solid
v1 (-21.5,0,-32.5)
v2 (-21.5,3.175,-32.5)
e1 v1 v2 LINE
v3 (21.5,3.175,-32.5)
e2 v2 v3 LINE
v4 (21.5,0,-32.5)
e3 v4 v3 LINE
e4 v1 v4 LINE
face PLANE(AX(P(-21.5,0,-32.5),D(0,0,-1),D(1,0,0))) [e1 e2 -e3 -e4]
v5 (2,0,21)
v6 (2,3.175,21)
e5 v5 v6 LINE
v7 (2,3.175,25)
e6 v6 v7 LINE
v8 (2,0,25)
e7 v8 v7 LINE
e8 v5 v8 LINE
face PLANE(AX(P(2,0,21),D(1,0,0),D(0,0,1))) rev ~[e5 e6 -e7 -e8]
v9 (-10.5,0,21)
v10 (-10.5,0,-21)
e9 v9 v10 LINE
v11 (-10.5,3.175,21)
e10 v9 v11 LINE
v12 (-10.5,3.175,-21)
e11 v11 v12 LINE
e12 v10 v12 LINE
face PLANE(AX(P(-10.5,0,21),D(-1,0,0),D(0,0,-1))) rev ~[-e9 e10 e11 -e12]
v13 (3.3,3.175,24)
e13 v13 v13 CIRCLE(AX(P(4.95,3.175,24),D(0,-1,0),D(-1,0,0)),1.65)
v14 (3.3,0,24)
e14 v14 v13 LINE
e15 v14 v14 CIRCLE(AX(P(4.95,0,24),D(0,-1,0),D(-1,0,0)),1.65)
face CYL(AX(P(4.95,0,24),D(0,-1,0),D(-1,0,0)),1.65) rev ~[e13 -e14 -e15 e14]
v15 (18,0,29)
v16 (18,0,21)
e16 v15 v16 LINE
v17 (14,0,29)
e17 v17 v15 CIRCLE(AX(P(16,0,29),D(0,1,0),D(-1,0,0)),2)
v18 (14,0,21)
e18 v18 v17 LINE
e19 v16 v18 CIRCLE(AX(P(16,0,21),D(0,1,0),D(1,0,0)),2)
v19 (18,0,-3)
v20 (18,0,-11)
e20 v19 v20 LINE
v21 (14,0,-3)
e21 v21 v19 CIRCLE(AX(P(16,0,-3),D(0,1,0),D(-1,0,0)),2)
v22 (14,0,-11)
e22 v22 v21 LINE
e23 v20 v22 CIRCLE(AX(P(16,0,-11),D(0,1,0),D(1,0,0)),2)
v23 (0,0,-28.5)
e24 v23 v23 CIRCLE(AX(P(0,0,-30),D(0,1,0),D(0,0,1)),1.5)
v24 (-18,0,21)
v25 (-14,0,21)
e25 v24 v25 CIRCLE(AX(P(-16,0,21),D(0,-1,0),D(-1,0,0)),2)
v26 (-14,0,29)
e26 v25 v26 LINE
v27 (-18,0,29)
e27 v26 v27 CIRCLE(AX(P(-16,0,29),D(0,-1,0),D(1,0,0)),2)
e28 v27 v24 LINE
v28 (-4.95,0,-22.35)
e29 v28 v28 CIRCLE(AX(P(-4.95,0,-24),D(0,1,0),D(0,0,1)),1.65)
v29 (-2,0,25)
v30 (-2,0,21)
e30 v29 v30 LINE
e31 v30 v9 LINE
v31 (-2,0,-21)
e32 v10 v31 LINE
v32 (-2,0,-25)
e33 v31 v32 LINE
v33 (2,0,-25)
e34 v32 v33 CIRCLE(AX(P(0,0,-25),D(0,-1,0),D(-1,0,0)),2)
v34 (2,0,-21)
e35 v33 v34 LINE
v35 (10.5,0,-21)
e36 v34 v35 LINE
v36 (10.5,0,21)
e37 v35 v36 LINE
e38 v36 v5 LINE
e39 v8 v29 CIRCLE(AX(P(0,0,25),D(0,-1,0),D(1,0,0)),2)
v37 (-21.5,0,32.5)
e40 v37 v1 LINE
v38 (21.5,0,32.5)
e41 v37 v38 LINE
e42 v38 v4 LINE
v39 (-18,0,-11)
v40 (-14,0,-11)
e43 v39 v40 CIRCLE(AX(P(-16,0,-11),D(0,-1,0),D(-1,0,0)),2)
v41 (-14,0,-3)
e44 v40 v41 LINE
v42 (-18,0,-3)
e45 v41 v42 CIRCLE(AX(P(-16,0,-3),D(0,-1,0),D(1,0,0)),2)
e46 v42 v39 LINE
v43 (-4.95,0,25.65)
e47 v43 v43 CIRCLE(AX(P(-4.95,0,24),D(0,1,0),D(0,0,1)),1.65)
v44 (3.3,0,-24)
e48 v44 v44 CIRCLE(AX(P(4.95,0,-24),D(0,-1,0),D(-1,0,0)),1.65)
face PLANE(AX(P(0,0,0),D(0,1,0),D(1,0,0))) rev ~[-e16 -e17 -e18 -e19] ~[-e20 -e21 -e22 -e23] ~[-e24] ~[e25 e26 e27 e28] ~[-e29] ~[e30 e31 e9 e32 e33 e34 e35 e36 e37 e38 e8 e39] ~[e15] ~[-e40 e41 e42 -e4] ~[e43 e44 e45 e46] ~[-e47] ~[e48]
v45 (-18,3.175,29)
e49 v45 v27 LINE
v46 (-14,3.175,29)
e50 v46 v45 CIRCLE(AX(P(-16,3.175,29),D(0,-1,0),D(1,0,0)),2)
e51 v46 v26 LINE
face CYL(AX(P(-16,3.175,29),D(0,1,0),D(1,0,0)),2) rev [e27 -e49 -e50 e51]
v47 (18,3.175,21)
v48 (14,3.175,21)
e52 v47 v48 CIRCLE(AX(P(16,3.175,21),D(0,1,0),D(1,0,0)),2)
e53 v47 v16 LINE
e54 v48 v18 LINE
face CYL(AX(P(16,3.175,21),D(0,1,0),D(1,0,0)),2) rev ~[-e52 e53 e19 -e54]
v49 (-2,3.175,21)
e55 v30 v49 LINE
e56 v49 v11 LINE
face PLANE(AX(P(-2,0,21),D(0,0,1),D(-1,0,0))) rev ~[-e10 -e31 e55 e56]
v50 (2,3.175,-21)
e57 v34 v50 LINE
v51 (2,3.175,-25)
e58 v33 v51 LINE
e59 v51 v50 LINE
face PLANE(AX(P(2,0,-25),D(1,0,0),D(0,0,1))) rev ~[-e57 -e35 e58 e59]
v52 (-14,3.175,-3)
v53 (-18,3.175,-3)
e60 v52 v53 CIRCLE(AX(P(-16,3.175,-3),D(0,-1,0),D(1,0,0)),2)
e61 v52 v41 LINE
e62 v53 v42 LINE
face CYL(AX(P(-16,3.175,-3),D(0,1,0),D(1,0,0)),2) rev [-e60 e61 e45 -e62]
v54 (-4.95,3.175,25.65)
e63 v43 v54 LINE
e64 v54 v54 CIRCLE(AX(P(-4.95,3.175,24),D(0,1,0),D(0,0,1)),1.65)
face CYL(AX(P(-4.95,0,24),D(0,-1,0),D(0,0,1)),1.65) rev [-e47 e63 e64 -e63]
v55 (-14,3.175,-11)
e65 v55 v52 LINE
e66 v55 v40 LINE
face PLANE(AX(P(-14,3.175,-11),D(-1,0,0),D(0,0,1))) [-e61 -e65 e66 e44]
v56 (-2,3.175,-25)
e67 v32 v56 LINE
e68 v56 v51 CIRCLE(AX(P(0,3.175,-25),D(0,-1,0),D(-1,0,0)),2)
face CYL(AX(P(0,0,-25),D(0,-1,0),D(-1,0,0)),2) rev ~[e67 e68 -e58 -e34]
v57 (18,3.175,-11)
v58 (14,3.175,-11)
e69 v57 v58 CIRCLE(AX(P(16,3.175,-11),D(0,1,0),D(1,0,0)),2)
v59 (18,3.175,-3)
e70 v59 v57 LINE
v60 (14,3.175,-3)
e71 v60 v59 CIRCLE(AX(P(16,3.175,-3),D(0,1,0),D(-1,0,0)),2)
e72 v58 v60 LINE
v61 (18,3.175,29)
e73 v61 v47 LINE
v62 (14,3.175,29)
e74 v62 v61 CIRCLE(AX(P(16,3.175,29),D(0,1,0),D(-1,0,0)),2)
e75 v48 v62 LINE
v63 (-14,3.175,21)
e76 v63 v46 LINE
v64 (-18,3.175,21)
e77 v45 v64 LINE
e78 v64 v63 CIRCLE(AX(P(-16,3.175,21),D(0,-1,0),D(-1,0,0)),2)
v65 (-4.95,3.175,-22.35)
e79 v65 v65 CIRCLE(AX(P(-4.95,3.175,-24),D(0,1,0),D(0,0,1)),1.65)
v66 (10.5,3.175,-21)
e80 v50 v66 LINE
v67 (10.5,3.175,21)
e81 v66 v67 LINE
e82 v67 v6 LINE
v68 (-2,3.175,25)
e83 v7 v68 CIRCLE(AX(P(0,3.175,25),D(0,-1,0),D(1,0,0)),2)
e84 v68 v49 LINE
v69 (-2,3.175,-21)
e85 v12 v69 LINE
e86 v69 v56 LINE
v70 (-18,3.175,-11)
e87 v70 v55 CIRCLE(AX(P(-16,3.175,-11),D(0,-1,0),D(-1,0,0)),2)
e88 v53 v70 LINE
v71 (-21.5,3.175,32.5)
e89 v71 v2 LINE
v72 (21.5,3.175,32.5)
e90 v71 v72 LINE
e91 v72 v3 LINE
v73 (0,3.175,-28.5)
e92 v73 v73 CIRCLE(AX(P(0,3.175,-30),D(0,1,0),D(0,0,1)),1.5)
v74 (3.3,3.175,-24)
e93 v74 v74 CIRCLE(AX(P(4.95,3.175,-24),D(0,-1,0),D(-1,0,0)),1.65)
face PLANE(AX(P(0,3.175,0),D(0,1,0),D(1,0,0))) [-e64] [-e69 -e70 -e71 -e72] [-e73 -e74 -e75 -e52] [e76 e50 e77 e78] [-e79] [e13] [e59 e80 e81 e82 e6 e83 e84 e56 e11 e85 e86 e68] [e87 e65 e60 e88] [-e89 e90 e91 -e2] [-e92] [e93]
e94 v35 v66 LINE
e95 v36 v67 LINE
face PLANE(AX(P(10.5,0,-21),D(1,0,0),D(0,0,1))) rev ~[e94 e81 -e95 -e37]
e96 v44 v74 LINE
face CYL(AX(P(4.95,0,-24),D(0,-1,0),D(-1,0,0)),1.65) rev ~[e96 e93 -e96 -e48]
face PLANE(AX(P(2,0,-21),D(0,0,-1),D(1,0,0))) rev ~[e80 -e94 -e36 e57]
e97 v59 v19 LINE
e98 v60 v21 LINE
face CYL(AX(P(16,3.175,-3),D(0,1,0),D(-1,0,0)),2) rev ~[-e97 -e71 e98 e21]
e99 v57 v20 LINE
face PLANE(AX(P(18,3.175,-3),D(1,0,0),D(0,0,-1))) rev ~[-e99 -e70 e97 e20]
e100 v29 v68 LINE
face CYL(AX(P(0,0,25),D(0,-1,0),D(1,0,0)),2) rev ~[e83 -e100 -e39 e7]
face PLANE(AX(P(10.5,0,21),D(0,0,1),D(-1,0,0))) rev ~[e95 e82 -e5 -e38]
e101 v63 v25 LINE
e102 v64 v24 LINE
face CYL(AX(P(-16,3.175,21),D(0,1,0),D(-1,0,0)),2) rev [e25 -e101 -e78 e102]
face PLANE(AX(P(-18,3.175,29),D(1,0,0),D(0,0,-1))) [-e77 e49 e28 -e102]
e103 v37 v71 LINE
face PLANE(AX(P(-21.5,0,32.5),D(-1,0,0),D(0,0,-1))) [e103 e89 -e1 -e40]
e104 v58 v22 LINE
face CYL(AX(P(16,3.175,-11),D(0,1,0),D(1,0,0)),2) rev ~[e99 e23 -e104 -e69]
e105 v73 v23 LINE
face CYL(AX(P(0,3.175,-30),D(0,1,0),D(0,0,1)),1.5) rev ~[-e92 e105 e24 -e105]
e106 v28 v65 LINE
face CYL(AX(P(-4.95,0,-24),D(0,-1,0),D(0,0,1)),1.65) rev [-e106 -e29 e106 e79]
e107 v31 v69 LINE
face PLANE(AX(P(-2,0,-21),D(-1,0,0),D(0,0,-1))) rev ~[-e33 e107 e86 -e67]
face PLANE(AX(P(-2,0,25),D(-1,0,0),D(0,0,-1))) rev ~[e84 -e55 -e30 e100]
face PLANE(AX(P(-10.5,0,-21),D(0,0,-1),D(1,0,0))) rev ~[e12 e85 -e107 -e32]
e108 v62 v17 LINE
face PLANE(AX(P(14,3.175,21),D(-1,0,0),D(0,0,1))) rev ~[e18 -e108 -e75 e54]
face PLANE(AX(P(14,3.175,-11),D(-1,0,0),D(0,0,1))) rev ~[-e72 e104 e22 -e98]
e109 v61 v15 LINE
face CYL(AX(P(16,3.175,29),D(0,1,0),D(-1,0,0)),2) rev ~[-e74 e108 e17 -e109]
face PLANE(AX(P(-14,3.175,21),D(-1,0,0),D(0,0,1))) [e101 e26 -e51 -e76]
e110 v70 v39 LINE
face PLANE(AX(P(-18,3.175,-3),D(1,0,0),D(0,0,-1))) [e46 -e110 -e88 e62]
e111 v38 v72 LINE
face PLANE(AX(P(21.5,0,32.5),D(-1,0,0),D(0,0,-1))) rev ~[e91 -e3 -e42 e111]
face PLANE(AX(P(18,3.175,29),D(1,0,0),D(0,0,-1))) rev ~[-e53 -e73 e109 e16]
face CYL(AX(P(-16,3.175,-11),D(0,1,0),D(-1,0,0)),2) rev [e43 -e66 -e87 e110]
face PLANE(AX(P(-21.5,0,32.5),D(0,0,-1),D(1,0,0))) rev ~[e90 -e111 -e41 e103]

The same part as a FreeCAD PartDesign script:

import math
import FreeCAD as App
import Part
import Sketcher

V = App.Vector


def add_polygon(sketch, points):
    """Adds a closed chain of lines whose ends are joined by coincident constraints."""
    first, n = sketch.GeometryCount, len(points)
    for a, b in zip(points, points[1:] + points[:1]):
        sketch.addGeometry(Part.LineSegment(App.Vector(*a, 0), App.Vector(*b, 0)), False)
    for i in range(n):
        sketch.addConstraint(Sketcher.Constraint("Coincident", first + i, 2, first + (i + 1) % n, 1))

doc = App.newDocument("Part")
body = doc.addObject("PartDesign::Body", "Body")

# Sketch on XZ plane
sketch1 = body.newObject("Sketcher::SketchObject", "Sketch")
sketch1.AttachmentSupport = (doc.getObject("XZ_Plane"), [""])
sketch1.MapMode = "FlatFace"
add_polygon(sketch1, [(-21.5, -32.5), (-21.5, 32.5), (21.5, 32.5), (21.5, -32.5)])  # lines 0-3
sketch1.addGeometry(Part.Circle(V(-4.95, 24, 0), V(0, 0, 1), 1.65), False)  # 4
sketch1.addGeometry(Part.Circle(V(4.95, 24, 0), V(0, 0, 1), 1.65), False)  # 5
sketch1.addGeometry(Part.Circle(V(-4.95, -24, 0), V(0, 0, 1), 1.65), False)  # 6
sketch1.addGeometry(Part.LineSegment(V(-10.5, 21, 0), V(-10.5, -21, 0)), False)  # 7
sketch1.addGeometry(Part.LineSegment(V(-10.5, -21, 0), V(-2, -21, 0)), False)  # 8
sketch1.addGeometry(Part.LineSegment(V(-2, -21, 0), V(-2, -25, 0)), False)  # 9
sketch1.addGeometry(Part.ArcOfCircle(Part.Circle(V(0, -25, 0), V(0, 0, 1), 2), math.radians(180), math.radians(360)), False)  # 10
sketch1.addGeometry(Part.LineSegment(V(2, -25, 0), V(2, -21, 0)), False)  # 11
sketch1.addGeometry(Part.LineSegment(V(2, -21, 0), V(10.5, -21, 0)), False)  # 12
sketch1.addGeometry(Part.LineSegment(V(10.5, -21, 0), V(10.5, 21, 0)), False)  # 13
sketch1.addGeometry(Part.LineSegment(V(10.5, 21, 0), V(2, 21, 0)), False)  # 14
sketch1.addGeometry(Part.LineSegment(V(2, 21, 0), V(2, 25, 0)), False)  # 15
sketch1.addGeometry(Part.ArcOfCircle(Part.Circle(V(0, 25, 0), V(0, 0, 1), 2), math.radians(0), math.radians(180)), False)  # 16
sketch1.addGeometry(Part.LineSegment(V(-2, 25, 0), V(-2, 21, 0)), False)  # 17
sketch1.addGeometry(Part.LineSegment(V(-2, 21, 0), V(-10.5, 21, 0)), False)  # 18
sketch1.addGeometry(Part.Circle(V(4.95, -24, 0), V(0, 0, 1), 1.65), False)  # 19
sketch1.addConstraint([
    Sketcher.Constraint("Coincident", 7, 2, 8, 1),
    Sketcher.Constraint("Coincident", 8, 2, 9, 1),
    Sketcher.Constraint("Tangent", 9, 2, 10, 1),
    Sketcher.Constraint("Tangent", 10, 2, 11, 1),
    Sketcher.Constraint("Coincident", 11, 2, 12, 1),
    Sketcher.Constraint("Coincident", 12, 2, 13, 1),
    Sketcher.Constraint("Coincident", 13, 2, 14, 1),
    Sketcher.Constraint("Coincident", 14, 2, 15, 1),
    Sketcher.Constraint("Tangent", 15, 2, 16, 1),
    Sketcher.Constraint("Tangent", 16, 2, 17, 1),
    Sketcher.Constraint("Coincident", 17, 2, 18, 1),
    Sketcher.Constraint("Coincident", 18, 2, 7, 1),
    Sketcher.Constraint("Vertical", 0),
    Sketcher.Constraint("Horizontal", 1),
    Sketcher.Constraint("Vertical", 2),
    Sketcher.Constraint("Horizontal", 3),
    Sketcher.Constraint("Vertical", 7),
    Sketcher.Constraint("Horizontal", 8),
    Sketcher.Constraint("Vertical", 9),
    Sketcher.Constraint("Vertical", 11),
    Sketcher.Constraint("Horizontal", 12),
    Sketcher.Constraint("Vertical", 13),
    Sketcher.Constraint("Horizontal", 14),
    Sketcher.Constraint("Vertical", 15),
    Sketcher.Constraint("Vertical", 17),
    Sketcher.Constraint("Horizontal", 18),
    Sketcher.Constraint("Equal", 4, 5),
    Sketcher.Constraint("Equal", 5, 6),
    Sketcher.Constraint("Equal", 10, 16),
    Sketcher.Constraint("Equal", 6, 19),
    Sketcher.Constraint("Symmetric", 5, 3, 6, 3, -1, 1),
    Sketcher.Constraint("Symmetric", 10, 3, 16, 3, -1, 1),
    Sketcher.Constraint("Symmetric", 4, 3, 19, 3, -1, 1),
    Sketcher.Constraint("Symmetric", 0, 2, 2, 2, -1, 1),
    Sketcher.Constraint("Symmetric", 7, 2, 13, 2, -1, 1),
    Sketcher.Constraint("Symmetric", 4, 3, 5, 3, -2),
    Sketcher.Constraint("Symmetric", 8, 2, 11, 2, -2),
    Sketcher.Constraint("Horizontal", 14, 2, 17, 2),
    Sketcher.Constraint("Radius", 10, 2.0),
    Sketcher.Constraint("Diameter", 4, 3.3),
    Sketcher.Constraint("DistanceX", 1, 1, 1, 2, 43.0),
    Sketcher.Constraint("DistanceY", 0, 1, 0, 2, 65.0),
    Sketcher.Constraint("DistanceY", 7, 2, 7, 1, 42.0),
    Sketcher.Constraint("DistanceY", 9, 2, 9, 1, 4.0),
    Sketcher.Constraint("DistanceX", 8, 1, 8, 2, 8.5),
    Sketcher.Constraint("DistanceY", -1, 1, 4, 3, 24.0),
    Sketcher.Constraint("DistanceX", 4, 3, 5, 3, 9.9),
])
pad1 = body.newObject("PartDesign::Pad", "Pad")
pad1.Profile = sketch1
pad1.Length = 3.175
pad1.Reversed = True

# Sketch on XZ plane
sketch2 = body.newObject("Sketcher::SketchObject", "Sketch001")
sketch2.AttachmentSupport = (doc.getObject("XZ_Plane"), [""])
sketch2.MapMode = "FlatFace"
sketch2.AttachmentOffset = App.Placement(V(0, 0, -3.175), App.Rotation())
sketch2.addGeometry([
    Part.LineSegment(V(-14, 29, 0), V(-14, 21, 0)),  # 0
    Part.ArcOfCircle(Part.Circle(V(-16, 21, 0), V(0, 0, 1), 2), math.radians(180), math.radians(360)),  # 1
    Part.LineSegment(V(-18, 21, 0), V(-18, 29, 0)),  # 2
    Part.ArcOfCircle(Part.Circle(V(-16, 29, 0), V(0, 0, 1), 2), math.radians(0), math.radians(180)),  # 3
    Part.LineSegment(V(14, 21, 0), V(14, 29, 0)),  # 4
    Part.ArcOfCircle(Part.Circle(V(16, 29, 0), V(0, 0, 1), 2), math.radians(0), math.radians(180)),  # 5
    Part.LineSegment(V(18, 29, 0), V(18, 21, 0)),  # 6
    Part.ArcOfCircle(Part.Circle(V(16, 21, 0), V(0, 0, 1), 2), math.radians(180), math.radians(360)),  # 7
    Part.LineSegment(V(-14, -3, 0), V(-14, -11, 0)),  # 8
    Part.ArcOfCircle(Part.Circle(V(-16, -11, 0), V(0, 0, 1), 2), math.radians(180), math.radians(360)),  # 9
    Part.LineSegment(V(-18, -11, 0), V(-18, -3, 0)),  # 10
    Part.ArcOfCircle(Part.Circle(V(-16, -3, 0), V(0, 0, 1), 2), math.radians(0), math.radians(180)),  # 11
    Part.LineSegment(V(14, -11, 0), V(14, -3, 0)),  # 12
    Part.ArcOfCircle(Part.Circle(V(16, -3, 0), V(0, 0, 1), 2), math.radians(0), math.radians(180)),  # 13
    Part.LineSegment(V(18, -3, 0), V(18, -11, 0)),  # 14
    Part.ArcOfCircle(Part.Circle(V(16, -11, 0), V(0, 0, 1), 2), math.radians(180), math.radians(360)),  # 15
], False)
sketch2.addConstraint([
    Sketcher.Constraint("Tangent", 0, 2, 1, 2),
    Sketcher.Constraint("Tangent", 1, 1, 2, 1),
    Sketcher.Constraint("Tangent", 2, 2, 3, 2),
    Sketcher.Constraint("Tangent", 3, 1, 0, 1),
    Sketcher.Constraint("Tangent", 4, 2, 5, 2),
    Sketcher.Constraint("Tangent", 5, 1, 6, 1),
    Sketcher.Constraint("Tangent", 6, 2, 7, 2),
    Sketcher.Constraint("Tangent", 7, 1, 4, 1),
    Sketcher.Constraint("Tangent", 8, 2, 9, 2),
    Sketcher.Constraint("Tangent", 9, 1, 10, 1),
    Sketcher.Constraint("Tangent", 10, 2, 11, 2),
    Sketcher.Constraint("Tangent", 11, 1, 8, 1),
    Sketcher.Constraint("Tangent", 12, 2, 13, 2),
    Sketcher.Constraint("Tangent", 13, 1, 14, 1),
    Sketcher.Constraint("Tangent", 14, 2, 15, 2),
    Sketcher.Constraint("Tangent", 15, 1, 12, 1),
    Sketcher.Constraint("Vertical", 0),
    Sketcher.Constraint("Vertical", 2),
    Sketcher.Constraint("Vertical", 4),
    Sketcher.Constraint("Vertical", 6),
    Sketcher.Constraint("Vertical", 8),
    Sketcher.Constraint("Vertical", 10),
    Sketcher.Constraint("Vertical", 12),
    Sketcher.Constraint("Vertical", 14),
    Sketcher.Constraint("Equal", 3, 5),
    Sketcher.Constraint("Equal", 7, 9),
    Sketcher.Constraint("Equal", 11, 13),
    Sketcher.Constraint("Symmetric", 3, 3, 5, 3, -2),
    Sketcher.Constraint("Symmetric", 11, 3, 13, 3, -2),
    Sketcher.Constraint("Horizontal", 1, 3, 7, 3),
    Sketcher.Constraint("Horizontal", 9, 3, 15, 3),
    Sketcher.Constraint("Vertical", 3, 3, 9, 3),
    Sketcher.Constraint("Equal", 6, 8),
    Sketcher.Constraint("Radius", 1, 2.0),
    Sketcher.Constraint("DistanceY", 0, 2, 0, 1, 8.0),
    Sketcher.Constraint("DistanceX", 1, 3, -1, 1, 16.0),
    Sketcher.Constraint("DistanceY", -1, 1, 1, 3, 21.0),
    Sketcher.Constraint("DistanceY", 9, 3, -1, 1, 11.0),
])
pocket1 = body.newObject("PartDesign::Pocket", "Pocket")
pocket1.Profile = sketch2
pocket1.Length = 3.175
pocket1.Reversed = True

# Sketch on XZ plane
sketch3 = body.newObject("Sketcher::SketchObject", "Sketch002")
sketch3.AttachmentSupport = (doc.getObject("XZ_Plane"), [""])
sketch3.MapMode = "FlatFace"
sketch3.AttachmentOffset = App.Placement(V(0, 0, -3.175), App.Rotation())
sketch3.addGeometry(Part.Circle(V(0, -30, 0), V(0, 0, 1), 1.5), False)
sketch3.addConstraint([
    Sketcher.Constraint("PointOnObject", 0, 3, -2),
    Sketcher.Constraint("Diameter", 0, 3.0),
    Sketcher.Constraint("DistanceY", 0, 3, -1, 1, 30.0),
])
pocket2 = body.newObject("PartDesign::Pocket", "Pocket001")
pocket2.Profile = sketch3
pocket2.Length = 10
pocket2.Reversed = True

doc.recompute()
